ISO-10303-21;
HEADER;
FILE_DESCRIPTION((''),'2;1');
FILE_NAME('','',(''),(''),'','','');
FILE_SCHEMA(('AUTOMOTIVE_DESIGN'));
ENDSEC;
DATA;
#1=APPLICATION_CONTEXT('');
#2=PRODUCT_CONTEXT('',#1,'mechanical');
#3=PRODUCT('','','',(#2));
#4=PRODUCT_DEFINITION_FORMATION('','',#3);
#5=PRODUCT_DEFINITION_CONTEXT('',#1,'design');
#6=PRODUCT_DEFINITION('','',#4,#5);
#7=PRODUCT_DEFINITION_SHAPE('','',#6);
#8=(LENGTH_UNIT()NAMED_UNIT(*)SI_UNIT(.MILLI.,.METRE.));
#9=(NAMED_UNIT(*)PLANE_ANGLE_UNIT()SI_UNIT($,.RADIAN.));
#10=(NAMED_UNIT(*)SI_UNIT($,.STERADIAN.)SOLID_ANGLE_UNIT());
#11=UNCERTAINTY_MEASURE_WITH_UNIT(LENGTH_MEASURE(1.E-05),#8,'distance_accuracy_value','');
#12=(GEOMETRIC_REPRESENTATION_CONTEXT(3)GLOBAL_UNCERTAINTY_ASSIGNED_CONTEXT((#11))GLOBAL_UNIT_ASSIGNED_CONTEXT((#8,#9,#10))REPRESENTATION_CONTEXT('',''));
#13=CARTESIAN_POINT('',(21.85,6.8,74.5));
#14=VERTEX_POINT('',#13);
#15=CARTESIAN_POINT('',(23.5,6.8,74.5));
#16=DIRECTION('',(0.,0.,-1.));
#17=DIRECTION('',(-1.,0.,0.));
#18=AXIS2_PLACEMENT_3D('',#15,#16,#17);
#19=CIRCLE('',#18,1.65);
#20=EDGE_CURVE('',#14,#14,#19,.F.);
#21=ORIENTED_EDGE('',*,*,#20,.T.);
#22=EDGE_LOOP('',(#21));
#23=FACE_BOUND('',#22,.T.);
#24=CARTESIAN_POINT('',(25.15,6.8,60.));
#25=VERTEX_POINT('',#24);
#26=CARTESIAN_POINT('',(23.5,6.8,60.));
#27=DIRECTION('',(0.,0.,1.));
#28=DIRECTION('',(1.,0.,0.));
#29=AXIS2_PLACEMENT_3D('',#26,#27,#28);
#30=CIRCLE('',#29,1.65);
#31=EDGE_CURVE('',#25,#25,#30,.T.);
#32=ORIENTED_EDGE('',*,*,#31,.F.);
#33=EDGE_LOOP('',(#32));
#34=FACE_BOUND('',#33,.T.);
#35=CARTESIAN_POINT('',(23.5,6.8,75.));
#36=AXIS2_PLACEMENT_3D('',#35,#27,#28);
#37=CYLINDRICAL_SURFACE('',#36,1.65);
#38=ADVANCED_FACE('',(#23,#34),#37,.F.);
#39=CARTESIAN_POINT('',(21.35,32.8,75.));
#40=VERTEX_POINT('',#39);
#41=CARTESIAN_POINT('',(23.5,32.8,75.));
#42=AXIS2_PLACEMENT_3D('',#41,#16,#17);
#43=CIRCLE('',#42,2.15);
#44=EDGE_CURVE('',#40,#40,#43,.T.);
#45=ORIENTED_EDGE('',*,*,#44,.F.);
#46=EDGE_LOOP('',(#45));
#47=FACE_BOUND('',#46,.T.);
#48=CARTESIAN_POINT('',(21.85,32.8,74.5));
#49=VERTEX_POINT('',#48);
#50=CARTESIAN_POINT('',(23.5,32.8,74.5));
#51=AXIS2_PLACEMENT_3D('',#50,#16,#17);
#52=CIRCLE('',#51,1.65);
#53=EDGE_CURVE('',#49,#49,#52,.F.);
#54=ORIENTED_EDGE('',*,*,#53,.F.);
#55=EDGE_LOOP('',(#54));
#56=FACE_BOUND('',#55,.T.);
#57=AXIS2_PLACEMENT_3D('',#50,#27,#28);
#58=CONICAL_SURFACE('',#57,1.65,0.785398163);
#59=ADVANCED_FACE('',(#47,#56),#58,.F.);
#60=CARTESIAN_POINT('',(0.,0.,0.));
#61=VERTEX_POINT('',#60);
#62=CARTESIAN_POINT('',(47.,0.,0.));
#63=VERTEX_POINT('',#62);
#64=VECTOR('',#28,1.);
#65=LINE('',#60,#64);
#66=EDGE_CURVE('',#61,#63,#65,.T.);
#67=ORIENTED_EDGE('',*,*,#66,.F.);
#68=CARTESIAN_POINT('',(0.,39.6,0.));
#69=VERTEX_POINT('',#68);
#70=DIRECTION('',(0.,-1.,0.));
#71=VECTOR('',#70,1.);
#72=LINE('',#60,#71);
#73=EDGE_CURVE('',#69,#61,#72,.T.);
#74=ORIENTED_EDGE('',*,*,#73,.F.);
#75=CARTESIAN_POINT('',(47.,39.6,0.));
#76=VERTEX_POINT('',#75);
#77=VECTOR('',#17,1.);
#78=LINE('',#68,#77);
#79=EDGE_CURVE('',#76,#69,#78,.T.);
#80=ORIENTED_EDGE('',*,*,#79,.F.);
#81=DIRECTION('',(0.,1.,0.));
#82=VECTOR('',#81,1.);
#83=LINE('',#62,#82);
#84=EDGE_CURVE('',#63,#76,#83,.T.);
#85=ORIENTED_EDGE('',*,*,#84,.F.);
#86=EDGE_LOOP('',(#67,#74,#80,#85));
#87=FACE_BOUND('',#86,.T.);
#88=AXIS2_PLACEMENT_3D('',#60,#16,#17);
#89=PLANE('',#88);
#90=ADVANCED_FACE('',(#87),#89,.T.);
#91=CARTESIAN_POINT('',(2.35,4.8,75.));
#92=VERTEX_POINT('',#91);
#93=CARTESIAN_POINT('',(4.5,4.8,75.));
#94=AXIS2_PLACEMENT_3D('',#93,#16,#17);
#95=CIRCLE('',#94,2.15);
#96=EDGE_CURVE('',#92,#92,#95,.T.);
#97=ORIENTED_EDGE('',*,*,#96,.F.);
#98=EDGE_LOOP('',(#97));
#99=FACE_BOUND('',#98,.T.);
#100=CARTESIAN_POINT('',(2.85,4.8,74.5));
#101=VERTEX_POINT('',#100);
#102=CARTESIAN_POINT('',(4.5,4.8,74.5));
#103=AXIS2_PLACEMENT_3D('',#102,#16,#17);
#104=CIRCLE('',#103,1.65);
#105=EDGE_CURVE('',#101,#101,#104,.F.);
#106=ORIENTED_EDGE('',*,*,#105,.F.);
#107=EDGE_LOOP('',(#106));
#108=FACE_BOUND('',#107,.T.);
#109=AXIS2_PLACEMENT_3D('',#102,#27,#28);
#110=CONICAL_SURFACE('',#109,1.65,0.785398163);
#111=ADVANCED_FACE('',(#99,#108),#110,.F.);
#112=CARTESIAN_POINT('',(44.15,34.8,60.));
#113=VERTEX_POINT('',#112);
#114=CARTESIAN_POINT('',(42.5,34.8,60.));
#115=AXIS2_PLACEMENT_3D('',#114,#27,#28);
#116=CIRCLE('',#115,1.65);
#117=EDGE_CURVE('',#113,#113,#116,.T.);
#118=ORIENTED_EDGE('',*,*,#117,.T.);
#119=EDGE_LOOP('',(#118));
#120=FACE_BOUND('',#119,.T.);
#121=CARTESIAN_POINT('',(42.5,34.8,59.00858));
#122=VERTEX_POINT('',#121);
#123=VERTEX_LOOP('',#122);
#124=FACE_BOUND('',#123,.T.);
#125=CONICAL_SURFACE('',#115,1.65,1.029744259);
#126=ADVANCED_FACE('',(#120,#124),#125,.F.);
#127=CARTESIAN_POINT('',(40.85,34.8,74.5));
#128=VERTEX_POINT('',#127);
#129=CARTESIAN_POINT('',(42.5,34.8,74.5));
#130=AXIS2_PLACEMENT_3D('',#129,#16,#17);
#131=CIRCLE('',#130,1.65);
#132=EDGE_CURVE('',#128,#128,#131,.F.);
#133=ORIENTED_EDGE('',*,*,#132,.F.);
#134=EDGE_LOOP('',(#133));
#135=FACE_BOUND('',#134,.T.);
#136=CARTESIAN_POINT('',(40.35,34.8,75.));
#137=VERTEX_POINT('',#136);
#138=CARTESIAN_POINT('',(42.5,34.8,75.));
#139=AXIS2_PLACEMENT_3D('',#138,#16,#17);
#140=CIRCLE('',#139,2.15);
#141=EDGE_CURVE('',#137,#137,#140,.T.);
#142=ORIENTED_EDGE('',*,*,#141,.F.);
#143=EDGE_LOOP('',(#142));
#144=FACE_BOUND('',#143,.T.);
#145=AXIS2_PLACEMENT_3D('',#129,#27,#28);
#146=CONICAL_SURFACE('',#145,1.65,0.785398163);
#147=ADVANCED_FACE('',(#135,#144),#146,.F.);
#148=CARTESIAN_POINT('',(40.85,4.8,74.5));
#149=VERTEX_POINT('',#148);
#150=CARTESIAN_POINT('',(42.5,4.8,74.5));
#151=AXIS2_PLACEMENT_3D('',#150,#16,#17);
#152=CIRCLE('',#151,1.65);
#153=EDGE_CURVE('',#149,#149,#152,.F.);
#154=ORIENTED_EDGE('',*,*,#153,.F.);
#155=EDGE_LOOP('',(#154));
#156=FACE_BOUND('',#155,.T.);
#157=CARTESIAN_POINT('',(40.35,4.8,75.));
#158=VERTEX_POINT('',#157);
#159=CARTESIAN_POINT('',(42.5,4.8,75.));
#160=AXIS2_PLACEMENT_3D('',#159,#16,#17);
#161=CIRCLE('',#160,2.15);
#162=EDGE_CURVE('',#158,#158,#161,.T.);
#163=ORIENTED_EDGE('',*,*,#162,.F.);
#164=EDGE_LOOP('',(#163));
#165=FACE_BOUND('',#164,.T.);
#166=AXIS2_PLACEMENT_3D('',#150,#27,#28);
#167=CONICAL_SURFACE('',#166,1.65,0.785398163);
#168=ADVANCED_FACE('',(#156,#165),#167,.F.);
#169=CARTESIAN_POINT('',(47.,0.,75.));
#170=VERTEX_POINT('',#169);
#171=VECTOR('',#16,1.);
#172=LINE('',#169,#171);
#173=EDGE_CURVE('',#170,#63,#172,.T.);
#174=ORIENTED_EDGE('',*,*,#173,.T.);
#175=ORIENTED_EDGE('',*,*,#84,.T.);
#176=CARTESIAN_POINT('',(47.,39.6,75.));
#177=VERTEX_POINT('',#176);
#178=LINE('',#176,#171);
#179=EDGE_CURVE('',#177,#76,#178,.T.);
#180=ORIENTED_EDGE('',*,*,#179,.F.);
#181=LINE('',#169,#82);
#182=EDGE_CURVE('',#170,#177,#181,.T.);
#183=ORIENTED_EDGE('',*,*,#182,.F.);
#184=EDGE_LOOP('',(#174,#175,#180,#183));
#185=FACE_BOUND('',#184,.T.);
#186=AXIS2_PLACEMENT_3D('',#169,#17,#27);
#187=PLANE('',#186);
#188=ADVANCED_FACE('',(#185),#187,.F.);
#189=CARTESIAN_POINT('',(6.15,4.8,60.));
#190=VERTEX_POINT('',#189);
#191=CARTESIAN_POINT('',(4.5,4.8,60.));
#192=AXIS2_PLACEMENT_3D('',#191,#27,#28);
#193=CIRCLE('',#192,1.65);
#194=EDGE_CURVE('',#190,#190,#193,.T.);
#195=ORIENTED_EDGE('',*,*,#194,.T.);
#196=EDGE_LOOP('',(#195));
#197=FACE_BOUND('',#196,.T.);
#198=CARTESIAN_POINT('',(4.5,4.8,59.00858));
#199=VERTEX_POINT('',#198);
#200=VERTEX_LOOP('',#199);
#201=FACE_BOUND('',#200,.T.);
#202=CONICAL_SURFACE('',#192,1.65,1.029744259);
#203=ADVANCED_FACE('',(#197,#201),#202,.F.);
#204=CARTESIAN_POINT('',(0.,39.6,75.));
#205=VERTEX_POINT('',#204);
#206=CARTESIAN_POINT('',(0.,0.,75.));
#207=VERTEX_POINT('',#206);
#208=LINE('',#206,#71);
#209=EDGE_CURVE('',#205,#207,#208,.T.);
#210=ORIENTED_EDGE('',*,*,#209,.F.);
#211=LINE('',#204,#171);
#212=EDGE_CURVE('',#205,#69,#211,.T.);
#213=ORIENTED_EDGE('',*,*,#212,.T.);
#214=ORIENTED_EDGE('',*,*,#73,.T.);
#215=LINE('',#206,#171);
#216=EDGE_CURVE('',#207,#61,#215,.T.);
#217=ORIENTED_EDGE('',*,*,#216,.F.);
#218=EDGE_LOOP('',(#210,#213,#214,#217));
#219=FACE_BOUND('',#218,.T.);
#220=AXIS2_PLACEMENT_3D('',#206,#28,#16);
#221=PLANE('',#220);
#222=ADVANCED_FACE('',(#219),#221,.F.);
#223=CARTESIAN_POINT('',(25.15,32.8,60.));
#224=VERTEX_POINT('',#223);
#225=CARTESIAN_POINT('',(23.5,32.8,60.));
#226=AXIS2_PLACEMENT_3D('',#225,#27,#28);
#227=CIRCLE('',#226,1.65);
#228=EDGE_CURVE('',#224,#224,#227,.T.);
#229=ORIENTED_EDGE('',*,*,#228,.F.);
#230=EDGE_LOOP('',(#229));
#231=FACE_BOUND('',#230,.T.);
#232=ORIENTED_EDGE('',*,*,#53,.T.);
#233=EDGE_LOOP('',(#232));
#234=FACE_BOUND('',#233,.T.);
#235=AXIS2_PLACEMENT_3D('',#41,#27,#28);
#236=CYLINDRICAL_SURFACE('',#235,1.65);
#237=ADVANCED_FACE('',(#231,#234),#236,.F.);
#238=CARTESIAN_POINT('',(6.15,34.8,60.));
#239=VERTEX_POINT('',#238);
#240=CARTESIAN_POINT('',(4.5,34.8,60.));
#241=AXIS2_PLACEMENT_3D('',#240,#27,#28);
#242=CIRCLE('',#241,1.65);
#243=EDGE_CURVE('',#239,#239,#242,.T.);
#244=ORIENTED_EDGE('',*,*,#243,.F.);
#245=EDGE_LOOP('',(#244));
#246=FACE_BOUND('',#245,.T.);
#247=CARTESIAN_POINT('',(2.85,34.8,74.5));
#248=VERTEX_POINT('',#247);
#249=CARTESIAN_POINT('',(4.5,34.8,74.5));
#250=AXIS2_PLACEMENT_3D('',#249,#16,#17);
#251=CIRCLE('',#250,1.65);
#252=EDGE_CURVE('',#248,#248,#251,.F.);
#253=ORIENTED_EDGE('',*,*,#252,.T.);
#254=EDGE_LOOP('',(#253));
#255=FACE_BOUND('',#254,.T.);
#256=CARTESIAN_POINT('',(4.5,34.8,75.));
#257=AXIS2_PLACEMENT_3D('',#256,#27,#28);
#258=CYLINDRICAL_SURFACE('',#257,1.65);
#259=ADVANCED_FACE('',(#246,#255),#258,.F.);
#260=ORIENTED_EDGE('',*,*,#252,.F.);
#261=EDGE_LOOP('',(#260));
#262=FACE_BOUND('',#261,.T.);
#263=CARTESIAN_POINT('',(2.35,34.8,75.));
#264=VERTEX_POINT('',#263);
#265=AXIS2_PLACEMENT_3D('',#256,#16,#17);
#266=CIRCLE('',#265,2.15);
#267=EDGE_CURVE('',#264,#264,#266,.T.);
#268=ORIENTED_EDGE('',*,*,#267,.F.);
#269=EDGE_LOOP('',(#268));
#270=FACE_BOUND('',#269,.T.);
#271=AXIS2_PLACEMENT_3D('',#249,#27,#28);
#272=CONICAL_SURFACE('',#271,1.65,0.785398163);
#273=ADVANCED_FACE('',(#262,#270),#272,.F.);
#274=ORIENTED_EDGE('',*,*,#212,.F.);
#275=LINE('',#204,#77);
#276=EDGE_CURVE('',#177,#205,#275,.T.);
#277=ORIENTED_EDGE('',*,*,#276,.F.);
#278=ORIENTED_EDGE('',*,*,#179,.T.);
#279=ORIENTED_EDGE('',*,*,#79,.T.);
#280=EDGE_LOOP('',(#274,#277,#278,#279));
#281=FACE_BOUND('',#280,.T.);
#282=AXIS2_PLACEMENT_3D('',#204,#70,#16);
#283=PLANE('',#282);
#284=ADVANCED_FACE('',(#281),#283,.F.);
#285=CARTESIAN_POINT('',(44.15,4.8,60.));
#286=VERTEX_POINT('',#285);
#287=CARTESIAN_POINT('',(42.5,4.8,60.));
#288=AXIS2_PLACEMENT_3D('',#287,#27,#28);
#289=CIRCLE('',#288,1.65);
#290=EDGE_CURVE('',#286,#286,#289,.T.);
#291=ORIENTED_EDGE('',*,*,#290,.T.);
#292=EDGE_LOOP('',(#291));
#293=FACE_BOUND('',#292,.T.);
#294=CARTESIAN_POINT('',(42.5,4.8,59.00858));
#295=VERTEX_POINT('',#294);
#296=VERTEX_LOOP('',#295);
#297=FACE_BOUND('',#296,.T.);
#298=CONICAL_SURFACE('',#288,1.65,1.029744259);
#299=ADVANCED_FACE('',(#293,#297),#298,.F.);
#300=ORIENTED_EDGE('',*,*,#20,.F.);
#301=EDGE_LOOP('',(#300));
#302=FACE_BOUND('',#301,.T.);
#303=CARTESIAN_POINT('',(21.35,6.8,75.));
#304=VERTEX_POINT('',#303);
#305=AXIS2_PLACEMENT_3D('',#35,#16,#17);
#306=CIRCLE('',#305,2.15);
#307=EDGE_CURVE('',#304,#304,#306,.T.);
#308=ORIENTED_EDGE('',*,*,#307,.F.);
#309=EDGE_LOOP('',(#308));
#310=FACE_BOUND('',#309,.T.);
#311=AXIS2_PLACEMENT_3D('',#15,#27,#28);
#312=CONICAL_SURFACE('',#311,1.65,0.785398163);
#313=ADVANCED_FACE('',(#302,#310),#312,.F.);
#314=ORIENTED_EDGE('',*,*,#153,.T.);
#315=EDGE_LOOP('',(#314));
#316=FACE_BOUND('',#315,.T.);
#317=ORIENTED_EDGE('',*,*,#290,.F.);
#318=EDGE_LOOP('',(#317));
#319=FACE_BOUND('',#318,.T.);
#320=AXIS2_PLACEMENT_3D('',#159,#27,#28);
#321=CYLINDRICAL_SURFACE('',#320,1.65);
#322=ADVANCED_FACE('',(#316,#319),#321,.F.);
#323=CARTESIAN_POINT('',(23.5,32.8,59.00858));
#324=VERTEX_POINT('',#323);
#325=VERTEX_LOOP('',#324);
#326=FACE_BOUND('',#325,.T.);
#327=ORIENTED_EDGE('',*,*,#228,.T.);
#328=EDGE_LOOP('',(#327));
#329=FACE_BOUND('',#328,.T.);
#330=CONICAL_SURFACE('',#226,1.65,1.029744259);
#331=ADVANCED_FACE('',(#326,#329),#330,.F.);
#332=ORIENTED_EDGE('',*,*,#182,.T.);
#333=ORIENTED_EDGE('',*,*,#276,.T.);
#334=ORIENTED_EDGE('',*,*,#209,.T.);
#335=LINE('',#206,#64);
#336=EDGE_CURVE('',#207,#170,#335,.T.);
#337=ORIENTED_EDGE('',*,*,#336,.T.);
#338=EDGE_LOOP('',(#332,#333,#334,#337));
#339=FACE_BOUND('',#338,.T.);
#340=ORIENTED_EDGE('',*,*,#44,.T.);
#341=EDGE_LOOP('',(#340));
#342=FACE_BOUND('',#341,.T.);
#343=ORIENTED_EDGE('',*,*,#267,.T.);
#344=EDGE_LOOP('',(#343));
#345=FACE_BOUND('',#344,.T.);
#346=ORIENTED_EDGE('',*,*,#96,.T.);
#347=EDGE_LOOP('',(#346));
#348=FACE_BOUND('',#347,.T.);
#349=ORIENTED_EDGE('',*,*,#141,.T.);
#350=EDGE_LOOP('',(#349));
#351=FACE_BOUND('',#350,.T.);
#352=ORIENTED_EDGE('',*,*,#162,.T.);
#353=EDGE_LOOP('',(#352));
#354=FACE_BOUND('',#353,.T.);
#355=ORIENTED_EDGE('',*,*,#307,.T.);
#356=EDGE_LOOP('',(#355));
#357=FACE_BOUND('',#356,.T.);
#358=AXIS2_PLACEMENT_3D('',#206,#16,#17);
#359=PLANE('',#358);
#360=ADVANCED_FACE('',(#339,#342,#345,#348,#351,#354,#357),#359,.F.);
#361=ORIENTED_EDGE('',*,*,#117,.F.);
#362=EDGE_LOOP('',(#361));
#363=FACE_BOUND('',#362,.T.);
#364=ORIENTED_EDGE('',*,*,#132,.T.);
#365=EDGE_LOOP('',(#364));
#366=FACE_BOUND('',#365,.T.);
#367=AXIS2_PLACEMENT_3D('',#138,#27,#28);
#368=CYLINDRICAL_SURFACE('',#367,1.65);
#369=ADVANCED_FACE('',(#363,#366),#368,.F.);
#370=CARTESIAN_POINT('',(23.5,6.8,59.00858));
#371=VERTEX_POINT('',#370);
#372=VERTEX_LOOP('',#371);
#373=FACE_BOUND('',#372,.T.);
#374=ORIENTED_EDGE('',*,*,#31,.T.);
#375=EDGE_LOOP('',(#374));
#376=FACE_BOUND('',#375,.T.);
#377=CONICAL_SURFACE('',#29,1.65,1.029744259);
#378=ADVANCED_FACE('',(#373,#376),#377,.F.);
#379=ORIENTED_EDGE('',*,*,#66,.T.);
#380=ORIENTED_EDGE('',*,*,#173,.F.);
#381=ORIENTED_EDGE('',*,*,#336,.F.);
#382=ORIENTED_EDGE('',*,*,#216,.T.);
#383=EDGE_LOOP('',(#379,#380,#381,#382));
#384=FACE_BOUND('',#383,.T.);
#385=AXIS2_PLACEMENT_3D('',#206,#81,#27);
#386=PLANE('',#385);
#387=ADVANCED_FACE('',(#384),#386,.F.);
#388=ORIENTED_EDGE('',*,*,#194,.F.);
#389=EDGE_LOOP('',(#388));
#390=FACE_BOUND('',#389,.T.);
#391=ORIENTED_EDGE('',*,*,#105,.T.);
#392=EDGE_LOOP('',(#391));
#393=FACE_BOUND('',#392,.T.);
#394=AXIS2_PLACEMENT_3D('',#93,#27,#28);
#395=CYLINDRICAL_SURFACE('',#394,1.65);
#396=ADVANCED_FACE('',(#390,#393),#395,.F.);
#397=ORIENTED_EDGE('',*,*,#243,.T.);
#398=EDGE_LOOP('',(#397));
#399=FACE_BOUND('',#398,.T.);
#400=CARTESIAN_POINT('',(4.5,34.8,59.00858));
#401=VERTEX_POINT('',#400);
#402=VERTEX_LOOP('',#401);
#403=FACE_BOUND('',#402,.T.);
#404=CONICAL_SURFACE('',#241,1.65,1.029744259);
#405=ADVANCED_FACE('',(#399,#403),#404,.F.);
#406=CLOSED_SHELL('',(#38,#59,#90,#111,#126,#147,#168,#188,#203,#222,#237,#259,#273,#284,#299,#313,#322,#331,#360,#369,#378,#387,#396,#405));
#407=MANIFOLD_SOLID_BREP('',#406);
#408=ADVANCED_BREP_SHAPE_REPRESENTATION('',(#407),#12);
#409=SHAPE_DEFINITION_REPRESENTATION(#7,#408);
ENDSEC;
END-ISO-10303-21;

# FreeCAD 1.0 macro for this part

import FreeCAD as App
import Part
import Sketcher

V = App.Vector


def edges_at(feature, points):
    """Names of the edges that pass closest to the given points."""
    edges = feature.Shape.Edges
    near = lambda p: min(range(len(edges)), key=lambda i: edges[i].distToShape(Part.Vertex(*p))[0])
    return sorted({f"Edge{near(p) + 1}" for p in points})

doc = App.newDocument("Part")
body = doc.addObject("PartDesign::Body", "Body")

# Sketch on XY plane
sketch1 = doc.addObject("Sketcher::SketchObject", "Sketch")
body.addObject(sketch1)
sketch1.AttachmentSupport = (doc.XY_Plane, [""])
sketch1.MapMode = "FlatFace"
sketch1.addGeometry([
    Part.LineSegment(V(0, 40, 0), V(0, 0, 0)),
    Part.LineSegment(V(0, 0, 0), V(47, 0, 0)),
    Part.LineSegment(V(47, 0, 0), V(47, 40, 0)),
    Part.LineSegment(V(47, 40, 0), V(0, 40, 0)),
], False)
sketch1.addConstraint([
    Sketcher.Constraint("Coincident", 0, 2, 1, 1),
    Sketcher.Constraint("Coincident", 1, 2, 2, 1),
    Sketcher.Constraint("Coincident", 2, 2, 3, 1),
    Sketcher.Constraint("Coincident", 3, 2, 0, 1),
    Sketcher.Constraint("Vertical", 0),
    Sketcher.Constraint("Horizontal", 1),
    Sketcher.Constraint("Vertical", 2),
    Sketcher.Constraint("Horizontal", 3),
    Sketcher.Constraint("Coincident", 0, 2, -1, 1),
    Sketcher.Constraint("DistanceX", 1, 1, 1, 2, 47.0),
    Sketcher.Constraint("DistanceY", 0, 2, 0, 1, 39.6),
])
pad1 = doc.addObject("PartDesign::Pad", "Pad")
body.addObject(pad1)
pad1.Profile = sketch1
pad1.Length = 75

# Sketch on XY plane
sketch2 = doc.addObject("Sketcher::SketchObject", "Sketch001")
body.addObject(sketch2)
sketch2.AttachmentSupport = (doc.XY_Plane, [""])
sketch2.MapMode = "FlatFace"
sketch2.AttachmentOffset = App.Placement(V(0, 0, 75), App.Rotation())
sketch2.addGeometry([
    Part.Circle(V(4.5, 34.8, 0), V(0, 0, 1), 1.6),  # 0
    Part.Circle(V(23.5, 32.8, 0), V(0, 0, 1), 1.6),  # 1
    Part.Circle(V(42.5, 34.8, 0), V(0, 0, 1), 1.6),  # 2
    Part.Circle(V(42.5, 4.8, 0), V(0, 0, 1), 1.6),  # 3
    Part.Circle(V(23.5, 6.8, 0), V(0, 0, 1), 1.6),  # 4
    Part.Circle(V(4.5, 4.8, 0), V(0, 0, 1), 1.6),  # 5
], False)
sketch2.addConstraint([
    Sketcher.Constraint("Equal", 0, 1),
    Sketcher.Constraint("Equal", 1, 2),
    Sketcher.Constraint("Equal", 2, 3),
    Sketcher.Constraint("Equal", 3, 4),
    Sketcher.Constraint("Equal", 4, 5),
    Sketcher.Constraint("Horizontal", 0, 3, 2, 3),
    Sketcher.Constraint("Horizontal", 3, 3, 5, 3),
    Sketcher.Constraint("Vertical", 2, 3, 3, 3),
    Sketcher.Constraint("Vertical", 1, 3, 4, 3),
    Sketcher.Constraint("Vertical", 0, 3, 5, 3),
    Sketcher.Constraint("Diameter", 0, 3.3),
    Sketcher.Constraint("DistanceX", 0, 3, 1, 3, 19.0),
    Sketcher.Constraint("DistanceY", 1, 3, 0, 3, 2.0),
    Sketcher.Constraint("DistanceX", 1, 3, 2, 3, 19.0),
    Sketcher.Constraint("DistanceY", 3, 3, 2, 3, 30.0),
    Sketcher.Constraint("DistanceY", 3, 3, 4, 3, 2.0),
    Sketcher.Constraint("DistanceX", -1, 1, 0, 3, 4.5),
    Sketcher.Constraint("DistanceY", -1, 1, 0, 3, 34.8),
])
doc.recompute()
hole = doc.addObject("PartDesign::Hole", "Hole")
body.addObject(hole)
hole.Profile = sketch2
hole.ThreadType = "None"
hole.Diameter = 3.3
hole.DepthType = "Dimension"
hole.Depth = 15
hole.DrillPoint = "Angled"
hole.DrillPointAngle = 118
doc.recompute()

chamfer = doc.addObject("PartDesign::Chamfer", "Chamfer")
body.addObject(chamfer)
chamfer.Base = (hole, edges_at(hole, [
    (6.15, 4.8, 75),
    (25.15, 6.8, 75),
    (44.15, 4.8, 75),
    (44.15, 34.8, 75),
    (25.15, 32.8, 75),
    (6.15, 34.8, 75),
]))
chamfer.Size = 0.5

doc.recompute()
